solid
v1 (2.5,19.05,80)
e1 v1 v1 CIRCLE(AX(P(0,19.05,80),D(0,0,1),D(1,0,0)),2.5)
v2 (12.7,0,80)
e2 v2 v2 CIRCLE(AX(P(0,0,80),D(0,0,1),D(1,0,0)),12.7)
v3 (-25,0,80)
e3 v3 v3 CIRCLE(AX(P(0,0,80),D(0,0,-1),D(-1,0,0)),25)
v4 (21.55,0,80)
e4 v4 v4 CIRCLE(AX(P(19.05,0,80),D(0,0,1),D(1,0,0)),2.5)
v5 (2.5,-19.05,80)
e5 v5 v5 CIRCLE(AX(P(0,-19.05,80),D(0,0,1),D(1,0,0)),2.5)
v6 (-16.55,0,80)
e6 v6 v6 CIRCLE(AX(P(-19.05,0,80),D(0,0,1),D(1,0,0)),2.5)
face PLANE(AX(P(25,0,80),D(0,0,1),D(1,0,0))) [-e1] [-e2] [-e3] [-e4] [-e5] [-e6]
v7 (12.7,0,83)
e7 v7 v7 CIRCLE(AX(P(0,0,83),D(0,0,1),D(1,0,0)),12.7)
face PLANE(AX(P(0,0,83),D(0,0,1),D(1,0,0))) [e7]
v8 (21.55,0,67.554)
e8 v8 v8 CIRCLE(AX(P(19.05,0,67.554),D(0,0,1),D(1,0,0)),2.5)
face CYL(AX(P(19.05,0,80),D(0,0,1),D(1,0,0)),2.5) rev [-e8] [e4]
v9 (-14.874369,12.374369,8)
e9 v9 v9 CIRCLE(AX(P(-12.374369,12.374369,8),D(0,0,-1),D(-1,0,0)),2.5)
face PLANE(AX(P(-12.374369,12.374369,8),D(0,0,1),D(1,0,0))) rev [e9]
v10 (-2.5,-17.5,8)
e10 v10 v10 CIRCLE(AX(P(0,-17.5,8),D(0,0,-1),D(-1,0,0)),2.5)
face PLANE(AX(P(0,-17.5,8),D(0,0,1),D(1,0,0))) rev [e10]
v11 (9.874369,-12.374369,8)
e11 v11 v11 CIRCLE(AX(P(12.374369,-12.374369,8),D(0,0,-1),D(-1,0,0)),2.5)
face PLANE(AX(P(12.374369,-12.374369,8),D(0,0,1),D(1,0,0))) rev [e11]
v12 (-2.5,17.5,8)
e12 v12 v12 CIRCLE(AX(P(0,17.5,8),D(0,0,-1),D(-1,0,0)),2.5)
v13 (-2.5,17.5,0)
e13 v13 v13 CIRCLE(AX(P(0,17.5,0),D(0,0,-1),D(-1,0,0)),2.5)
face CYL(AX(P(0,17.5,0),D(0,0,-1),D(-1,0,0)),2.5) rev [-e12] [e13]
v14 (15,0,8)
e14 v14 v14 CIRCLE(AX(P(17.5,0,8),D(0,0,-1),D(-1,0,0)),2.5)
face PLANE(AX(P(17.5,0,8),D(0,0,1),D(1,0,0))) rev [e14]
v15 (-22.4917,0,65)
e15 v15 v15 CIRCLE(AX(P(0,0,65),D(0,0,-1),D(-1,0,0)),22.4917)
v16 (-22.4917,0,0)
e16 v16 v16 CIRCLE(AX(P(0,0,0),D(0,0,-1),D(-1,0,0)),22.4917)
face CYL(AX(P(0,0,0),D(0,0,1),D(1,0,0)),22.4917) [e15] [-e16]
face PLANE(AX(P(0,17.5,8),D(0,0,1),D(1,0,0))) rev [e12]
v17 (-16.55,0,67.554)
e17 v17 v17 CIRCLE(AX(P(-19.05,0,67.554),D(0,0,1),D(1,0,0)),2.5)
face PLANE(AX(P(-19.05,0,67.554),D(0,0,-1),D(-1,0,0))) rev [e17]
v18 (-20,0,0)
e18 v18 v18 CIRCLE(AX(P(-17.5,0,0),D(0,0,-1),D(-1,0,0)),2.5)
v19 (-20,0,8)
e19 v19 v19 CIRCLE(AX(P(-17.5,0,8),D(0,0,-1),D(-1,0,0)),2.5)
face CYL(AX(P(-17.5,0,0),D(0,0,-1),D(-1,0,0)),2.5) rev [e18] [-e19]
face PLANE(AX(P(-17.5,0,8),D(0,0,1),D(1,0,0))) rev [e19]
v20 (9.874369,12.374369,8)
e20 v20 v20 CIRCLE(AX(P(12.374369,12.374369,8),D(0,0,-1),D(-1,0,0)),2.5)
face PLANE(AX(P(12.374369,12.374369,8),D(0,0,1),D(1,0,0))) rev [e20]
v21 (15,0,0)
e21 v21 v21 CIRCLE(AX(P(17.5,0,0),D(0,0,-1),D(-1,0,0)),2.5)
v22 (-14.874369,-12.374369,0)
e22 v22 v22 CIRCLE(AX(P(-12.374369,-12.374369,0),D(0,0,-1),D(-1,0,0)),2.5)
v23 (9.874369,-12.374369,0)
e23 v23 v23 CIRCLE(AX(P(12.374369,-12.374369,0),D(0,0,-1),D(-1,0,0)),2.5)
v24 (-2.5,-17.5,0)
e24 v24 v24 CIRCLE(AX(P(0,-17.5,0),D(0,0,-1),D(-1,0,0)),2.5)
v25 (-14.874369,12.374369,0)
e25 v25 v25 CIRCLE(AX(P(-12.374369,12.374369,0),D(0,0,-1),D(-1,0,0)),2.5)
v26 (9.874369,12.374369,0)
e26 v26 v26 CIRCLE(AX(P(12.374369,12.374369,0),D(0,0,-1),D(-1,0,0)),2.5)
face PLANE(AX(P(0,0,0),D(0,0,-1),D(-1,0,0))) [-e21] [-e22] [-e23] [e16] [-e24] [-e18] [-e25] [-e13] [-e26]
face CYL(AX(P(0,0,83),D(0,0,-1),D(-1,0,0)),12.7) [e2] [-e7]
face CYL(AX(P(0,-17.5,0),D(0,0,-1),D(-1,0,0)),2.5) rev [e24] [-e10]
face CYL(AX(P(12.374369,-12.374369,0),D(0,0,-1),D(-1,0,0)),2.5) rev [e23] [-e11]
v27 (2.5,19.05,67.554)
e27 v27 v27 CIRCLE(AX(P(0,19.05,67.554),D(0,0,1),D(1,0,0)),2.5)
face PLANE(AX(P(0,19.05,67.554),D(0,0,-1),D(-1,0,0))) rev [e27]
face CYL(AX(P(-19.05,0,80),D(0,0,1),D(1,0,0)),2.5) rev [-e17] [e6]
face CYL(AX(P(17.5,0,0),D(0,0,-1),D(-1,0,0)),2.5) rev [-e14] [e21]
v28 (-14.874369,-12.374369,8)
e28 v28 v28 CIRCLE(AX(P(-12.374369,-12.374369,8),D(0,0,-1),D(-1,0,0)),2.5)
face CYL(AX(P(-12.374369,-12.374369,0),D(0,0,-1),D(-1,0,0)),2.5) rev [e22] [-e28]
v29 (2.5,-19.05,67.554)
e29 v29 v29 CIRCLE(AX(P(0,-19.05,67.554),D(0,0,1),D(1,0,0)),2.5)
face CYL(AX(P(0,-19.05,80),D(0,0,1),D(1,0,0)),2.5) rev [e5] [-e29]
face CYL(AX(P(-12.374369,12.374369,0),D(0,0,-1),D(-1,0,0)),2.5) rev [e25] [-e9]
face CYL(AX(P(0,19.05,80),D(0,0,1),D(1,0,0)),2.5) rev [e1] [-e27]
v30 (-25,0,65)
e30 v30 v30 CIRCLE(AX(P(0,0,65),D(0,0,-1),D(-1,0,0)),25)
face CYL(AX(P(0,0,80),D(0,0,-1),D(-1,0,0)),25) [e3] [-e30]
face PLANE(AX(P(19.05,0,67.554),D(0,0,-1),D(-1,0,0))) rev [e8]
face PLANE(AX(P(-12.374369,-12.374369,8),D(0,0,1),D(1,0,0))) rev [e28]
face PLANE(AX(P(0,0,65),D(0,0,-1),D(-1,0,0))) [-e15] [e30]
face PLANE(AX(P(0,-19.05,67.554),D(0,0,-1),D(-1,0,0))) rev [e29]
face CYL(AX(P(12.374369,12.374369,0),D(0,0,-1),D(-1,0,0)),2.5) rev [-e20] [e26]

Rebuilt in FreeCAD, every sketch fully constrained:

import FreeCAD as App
import Part
import Sketcher


def add_polygon(sketch, points):
    """Adds a closed chain of lines whose ends are joined by coincident constraints."""
    first, n = sketch.GeometryCount, len(points)
    for a, b in zip(points, points[1:] + points[:1]):
        sketch.addGeometry(Part.LineSegment(App.Vector(*a, 0), App.Vector(*b, 0)), False)
    for i in range(n):
        sketch.addConstraint(Sketcher.Constraint("Coincident", first + i, 2, first + (i + 1) % n, 1))

doc = App.newDocument("Part")
body = doc.addObject("PartDesign::Body", "Body")

sketch1 = doc.addObject("Sketcher::SketchObject", "Sketch")
body.addObject(sketch1)
sketch1.AttachmentSupport = (doc.XZ_Plane, [""])
sketch1.MapMode = "FlatFace"
add_polygon(sketch1, [(0, 80), (0, 65), (25, 65), (25, 80)])
sketch1.addConstraint(Sketcher.Constraint("Vertical", 0))
sketch1.addConstraint(Sketcher.Constraint("Horizontal", 1))
sketch1.addConstraint(Sketcher.Constraint("Vertical", 2))
sketch1.addConstraint(Sketcher.Constraint("Horizontal", 3))
sketch1.addConstraint(Sketcher.Constraint("PointOnObject", 0, 2, -2))
sketch1.addConstraint(Sketcher.Constraint("DistanceX", 1, 1, 1, 2, 25.0))
sketch1.addConstraint(Sketcher.Constraint("DistanceY", 0, 2, 0, 1, 15.0))
sketch1.addConstraint(Sketcher.Constraint("DistanceY", -1, 1, 0, 2, 65.0))
revolution = doc.addObject("PartDesign::Revolution", "Revolution")
body.addObject(revolution)
revolution.Profile = sketch1
revolution.ReferenceAxis = (sketch1, ["V_Axis"])
revolution.Angle = 360

sketch2 = doc.addObject("Sketcher::SketchObject", "Sketch001")
body.addObject(sketch2)
sketch2.AttachmentSupport = (doc.XY_Plane, [""])
sketch2.MapMode = "FlatFace"
sketch2.AttachmentOffset = App.Placement(App.Vector(0, 0, 80), App.Rotation())
sketch2.addGeometry(Part.Circle(App.Vector(0, 0, 0), App.Vector(0, 0, 1), 13), False)
sketch2.addConstraint(Sketcher.Constraint("Coincident", 0, 3, -1, 1))
sketch2.addConstraint(Sketcher.Constraint("Diameter", 0, 25.4))
pad1 = doc.addObject("PartDesign::Pad", "Pad")
body.addObject(pad1)
pad1.Profile = sketch2
pad1.Length = 3

sketch3 = doc.addObject("Sketcher::SketchObject", "Sketch002")
body.addObject(sketch3)
sketch3.AttachmentSupport = (doc.XY_Plane, [""])
sketch3.MapMode = "FlatFace"
sketch3.AttachmentOffset = App.Placement(App.Vector(0, 0, 65), App.Rotation())
sketch3.addGeometry(Part.Circle(App.Vector(0, 0, 0), App.Vector(0, 0, 1), 22), False)
sketch3.addConstraint(Sketcher.Constraint("Coincident", 0, 3, -1, 1))
sketch3.addConstraint(Sketcher.Constraint("Diameter", 0, 44.9834))
pad2 = doc.addObject("PartDesign::Pad", "Pad001")
body.addObject(pad2)
pad2.Profile = sketch3
pad2.Length = 65
pad2.Reversed = True

sketch4 = doc.addObject("Sketcher::SketchObject", "Sketch003")
body.addObject(sketch4)
sketch4.AttachmentSupport = (doc.XY_Plane, [""])
sketch4.MapMode = "FlatFace"
sketch4.addGeometry(Part.Circle(App.Vector(12.4, 12.4, 0), App.Vector(0, 0, 1), 2.5), False)
sketch4.addGeometry(Part.Circle(App.Vector(17.5, 0, 0), App.Vector(0, 0, 1), 2.5), False)
sketch4.addGeometry(Part.Circle(App.Vector(12.4, -12.4, 0), App.Vector(0, 0, 1), 2.5), False)
sketch4.addGeometry(Part.Circle(App.Vector(0, -17.5, 0), App.Vector(0, 0, 1), 2.5), False)
sketch4.addGeometry(Part.Circle(App.Vector(-12.4, -12.4, 0), App.Vector(0, 0, 1), 2.5), False)
sketch4.addGeometry(Part.Circle(App.Vector(-17.5, 0, 0), App.Vector(0, 0, 1), 2.5), False)
sketch4.addGeometry(Part.Circle(App.Vector(-12.4, 12.4, 0), App.Vector(0, 0, 1), 2.5), False)
sketch4.addGeometry(Part.Circle(App.Vector(0, 17.5, 0), App.Vector(0, 0, 1), 2.5), False)
sketch4.addConstraint(Sketcher.Constraint("Equal", 0, 1))
sketch4.addConstraint(Sketcher.Constraint("Equal", 1, 2))
sketch4.addConstraint(Sketcher.Constraint("Equal", 2, 3))
sketch4.addConstraint(Sketcher.Constraint("Equal", 3, 4))
sketch4.addConstraint(Sketcher.Constraint("Equal", 4, 5))
sketch4.addConstraint(Sketcher.Constraint("Equal", 5, 6))
sketch4.addConstraint(Sketcher.Constraint("Equal", 6, 7))
sketch4.addConstraint(Sketcher.Constraint("Symmetric", 0, 3, 4, 3, -1, 1))
sketch4.addConstraint(Sketcher.Constraint("Symmetric", 1, 3, 5, 3, -1, 1))
sketch4.addConstraint(Sketcher.Constraint("Symmetric", 2, 3, 6, 3, -1, 1))
sketch4.addConstraint(Sketcher.Constraint("Symmetric", 3, 3, 7, 3, -1, 1))
sketch4.addConstraint(Sketcher.Constraint("Symmetric", 2, 3, 4, 3, -2))
sketch4.addConstraint(Sketcher.Constraint("PointOnObject", 1, 3, -1))
sketch4.addConstraint(Sketcher.Constraint("PointOnObject", 3, 3, -2))
sketch4.addConstraint(Sketcher.Constraint("Diameter", 0, 5.0))
sketch4.addConstraint(Sketcher.Constraint("DistanceX", 5, 3, 1, 3, 35.0))
sketch4.addConstraint(Sketcher.Constraint("DistanceY", 3, 3, -1, 1, 17.5))
sketch4.addConstraint(Sketcher.Constraint("DistanceX", -1, 1, 0, 3, 12.374369))
sketch4.addConstraint(Sketcher.Constraint("DistanceY", -1, 1, 0, 3, 12.374369))
doc.recompute()
hole = doc.addObject("PartDesign::Hole", "Hole")
body.addObject(hole)
hole.Profile = sketch4
hole.ThreadType = "None"
hole.Diameter = 5
hole.DepthType = "Dimension"
hole.Depth = 8
hole.DrillPoint = "Flat"
hole.Reversed = True

sketch5 = doc.addObject("Sketcher::SketchObject", "Sketch004")
body.addObject(sketch5)
sketch5.AttachmentSupport = (doc.XY_Plane, [""])
sketch5.MapMode = "FlatFace"
sketch5.AttachmentOffset = App.Placement(App.Vector(0, 0, 80), App.Rotation())
sketch5.addGeometry(Part.Circle(App.Vector(-19.1, 0, 0), App.Vector(0, 0, 1), 2.5), False)
sketch5.addGeometry(Part.Circle(App.Vector(0, -19.1, 0), App.Vector(0, 0, 1), 2.5), False)
sketch5.addGeometry(Part.Circle(App.Vector(19.1, 0, 0), App.Vector(0, 0, 1), 2.5), False)
sketch5.addGeometry(Part.Circle(App.Vector(0, 19.1, 0), App.Vector(0, 0, 1), 2.5), False)
sketch5.addConstraint(Sketcher.Constraint("Equal", 0, 1))
sketch5.addConstraint(Sketcher.Constraint("Equal", 1, 2))
sketch5.addConstraint(Sketcher.Constraint("Equal", 2, 3))
sketch5.addConstraint(Sketcher.Constraint("Symmetric", 0, 3, 2, 3, -1, 1))
sketch5.addConstraint(Sketcher.Constraint("Symmetric", 1, 3, 3, 3, -1, 1))
sketch5.addConstraint(Sketcher.Constraint("PointOnObject", 0, 3, -1))
sketch5.addConstraint(Sketcher.Constraint("PointOnObject", 1, 3, -2))
sketch5.addConstraint(Sketcher.Constraint("Diameter", 0, 5.0))
sketch5.addConstraint(Sketcher.Constraint("DistanceX", 0, 3, 2, 3, 38.1))
sketch5.addConstraint(Sketcher.Constraint("DistanceY", 1, 3, 3, 3, 38.1))
doc.recompute()
hole2 = doc.addObject("PartDesign::Hole", "Hole001")
body.addObject(hole2)
hole2.Profile = sketch5
hole2.ThreadType = "None"
hole2.Diameter = 5
hole2.DepthType = "Dimension"
hole2.Depth = 12.446
hole2.DrillPoint = "Flat"

doc.recompute()
